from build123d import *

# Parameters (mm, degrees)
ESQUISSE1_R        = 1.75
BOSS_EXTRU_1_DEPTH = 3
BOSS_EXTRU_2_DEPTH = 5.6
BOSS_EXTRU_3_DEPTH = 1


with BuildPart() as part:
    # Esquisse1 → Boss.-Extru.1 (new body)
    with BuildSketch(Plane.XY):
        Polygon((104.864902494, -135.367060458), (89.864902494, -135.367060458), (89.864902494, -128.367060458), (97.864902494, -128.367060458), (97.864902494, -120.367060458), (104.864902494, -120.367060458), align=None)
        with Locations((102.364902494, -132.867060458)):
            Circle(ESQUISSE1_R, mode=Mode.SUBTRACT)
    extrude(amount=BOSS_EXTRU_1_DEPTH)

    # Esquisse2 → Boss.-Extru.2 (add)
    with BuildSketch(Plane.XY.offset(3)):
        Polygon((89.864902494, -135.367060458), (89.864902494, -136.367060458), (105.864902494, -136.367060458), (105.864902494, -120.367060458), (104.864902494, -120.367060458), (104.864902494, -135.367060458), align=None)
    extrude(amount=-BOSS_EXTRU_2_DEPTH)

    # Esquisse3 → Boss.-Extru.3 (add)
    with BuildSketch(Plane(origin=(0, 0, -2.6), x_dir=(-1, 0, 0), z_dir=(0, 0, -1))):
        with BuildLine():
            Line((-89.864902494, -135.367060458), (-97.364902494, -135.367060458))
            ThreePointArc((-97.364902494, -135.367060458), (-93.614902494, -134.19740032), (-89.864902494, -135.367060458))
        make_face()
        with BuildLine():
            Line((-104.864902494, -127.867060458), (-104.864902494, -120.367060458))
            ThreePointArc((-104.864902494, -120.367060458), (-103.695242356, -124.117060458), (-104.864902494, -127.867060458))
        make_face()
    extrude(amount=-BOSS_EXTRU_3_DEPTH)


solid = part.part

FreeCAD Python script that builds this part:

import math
import FreeCAD as App
import Part
import Sketcher
from FreeCAD import Vector
Q = App.Units.Quantity

doc = App.newDocument("Part")
body = doc.addObject("PartDesign::Body", "Body")

# Sketch on XY plane
sketch1 = body.newObject("Sketcher::SketchObject", "Sketch")
sketch1.AttachmentSupport = (doc.getObject("XY_Plane"), [""])
sketch1.MapMode = "FlatFace"
sketch1.addGeometry(Part.LineSegment(Vector(89.864902, -135.36706, 0), Vector(104.864902, -135.36706, 0)), False)
sketch1.addGeometry(Part.LineSegment(Vector(104.864902, -135.36706, 0), Vector(104.864902, -120.36706, 0)), False)
sketch1.addGeometry(Part.LineSegment(Vector(104.864902, -120.36706, 0), Vector(97.864902, -120.36706, 0)), False)
sketch1.addGeometry(Part.LineSegment(Vector(97.864902, -120.36706, 0), Vector(97.864902, -128.36706, 0)), False)
sketch1.addGeometry(Part.LineSegment(Vector(97.864902, -128.36706, 0), Vector(89.864902, -128.36706, 0)), False)
sketch1.addGeometry(Part.LineSegment(Vector(89.864902, -128.36706, 0), Vector(89.864902, -135.36706, 0)), False)
sketch1.addGeometry(Part.Circle(Vector(102.364902, -132.86706, 0), Vector(0, 0, 1), 1.75), False)
sketch1.addConstraint(Sketcher.Constraint("Coincident", 0, 2, 1, 1))
sketch1.addConstraint(Sketcher.Constraint("Coincident", 1, 2, 2, 1))
sketch1.addConstraint(Sketcher.Constraint("Coincident", 2, 2, 3, 1))
sketch1.addConstraint(Sketcher.Constraint("Coincident", 3, 2, 4, 1))
sketch1.addConstraint(Sketcher.Constraint("Coincident", 4, 2, 5, 1))
sketch1.addConstraint(Sketcher.Constraint("Coincident", 5, 2, 0, 1))
sketch1.addConstraint(Sketcher.Constraint("Horizontal", 0))
sketch1.addConstraint(Sketcher.Constraint("Vertical", 1))
sketch1.addConstraint(Sketcher.Constraint("Horizontal", 2))
sketch1.addConstraint(Sketcher.Constraint("Vertical", 3))
sketch1.addConstraint(Sketcher.Constraint("Horizontal", 4))
sketch1.addConstraint(Sketcher.Constraint("Vertical", 5))
sketch1.addConstraint(Sketcher.Constraint("Equal", 0, 1))
sketch1.addConstraint(Sketcher.Constraint("Equal", 4, 3))
sketch1.addConstraint(Sketcher.Constraint("Diameter", 6, Q("3.5 mm")))
sketch1.addConstraint(Sketcher.Constraint("DistanceX", 0, 1, 0, 2, Q("15 mm")))
sketch1.addConstraint(Sketcher.Constraint("DistanceX", 2, 2, 2, 1, Q("7 mm")))
sketch1.addConstraint(Sketcher.Constraint("DistanceX", 6, 3, 0, 2, Q("2.5 mm")))
sketch1.addConstraint(Sketcher.Constraint("DistanceY", 0, 2, 6, 3, Q("2.5 mm")))
sketch1.addConstraint(Sketcher.Constraint("DistanceY", 6, 3, -1, 1, Q("132.86706 mm")))
sketch1.addConstraint(Sketcher.Constraint("DistanceX", -1, 1, 6, 3, Q("102.364902 mm")))
pad1 = body.newObject("PartDesign::Pad", "Pad")
pad1.Profile = sketch1
pad1.Length = 3

# Sketch on XY plane
sketch2 = body.newObject("Sketcher::SketchObject", "Sketch001")
sketch2.AttachmentSupport = (doc.getObject("XY_Plane"), [""])
sketch2.MapMode = "FlatFace"
sketch2.AttachmentOffset = App.Placement(Vector(0, 0, 3), App.Rotation())
sketch2.addGeometry(Part.LineSegment(Vector(89.864902, -135.36706, 0), Vector(89.864902, -136.36706, 0)), False)
sketch2.addGeometry(Part.LineSegment(Vector(89.864902, -136.36706, 0), Vector(105.864902, -136.36706, 0)), False)
sketch2.addGeometry(Part.LineSegment(Vector(105.864902, -136.36706, 0), Vector(105.864902, -120.36706, 0)), False)
sketch2.addGeometry(Part.LineSegment(Vector(105.864902, -120.36706, 0), Vector(104.864902, -120.36706, 0)), False)
sketch2.addGeometry(Part.LineSegment(Vector(104.864902, -120.36706, 0), Vector(104.864902, -135.36706, 0)), False)
sketch2.addGeometry(Part.LineSegment(Vector(104.864902, -135.36706, 0), Vector(89.864902, -135.36706, 0)), False)
sketch2.addConstraint(Sketcher.Constraint("Coincident", 0, 2, 1, 1))
sketch2.addConstraint(Sketcher.Constraint("Coincident", 1, 2, 2, 1))
sketch2.addConstraint(Sketcher.Constraint("Coincident", 2, 2, 3, 1))
sketch2.addConstraint(Sketcher.Constraint("Coincident", 3, 2, 4, 1))
sketch2.addConstraint(Sketcher.Constraint("Coincident", 4, 2, 5, 1))
sketch2.addConstraint(Sketcher.Constraint("Coincident", 5, 2, 0, 1))
sketch2.addConstraint(Sketcher.Constraint("Vertical", 0))
sketch2.addConstraint(Sketcher.Constraint("Horizontal", 1))
sketch2.addConstraint(Sketcher.Constraint("Vertical", 2))
sketch2.addConstraint(Sketcher.Constraint("Horizontal", 3))
sketch2.addConstraint(Sketcher.Constraint("Vertical", 4))
sketch2.addConstraint(Sketcher.Constraint("Horizontal", 5))
sketch2.addConstraint(Sketcher.Constraint("Equal", 3, 0))
sketch2.addConstraint(Sketcher.Constraint("Equal", 1, 2))
sketch2.addConstraint(Sketcher.Constraint("DistanceX", 1, 1, 1, 2, Q("16 mm")))
sketch2.addConstraint(Sketcher.Constraint("DistanceX", 3, 2, 3, 1, Q("1 mm")))
sketch2.addConstraint(Sketcher.Constraint("DistanceY", 0, 2, -1, 1, Q("136.36706 mm")))
sketch2.addConstraint(Sketcher.Constraint("DistanceX", -1, 1, 0, 2, Q("89.864902 mm")))
pad2 = body.newObject("PartDesign::Pad", "Pad001")
pad2.Profile = sketch2
pad2.Length = 5.6
pad2.Reversed = True

# Sketch on XY plane
sketch3 = body.newObject("Sketcher::SketchObject", "Sketch002")
sketch3.AttachmentSupport = (doc.getObject("XY_Plane"), [""])
sketch3.MapMode = "FlatFace"
sketch3.AttachmentOffset = App.Placement(Vector(0, 0, -2.6), App.Rotation())
sketch3.addGeometry(Part.LineSegment(Vector(97.364902, -135.36706, 0), Vector(89.864902, -135.36706, 0)), False)
sketch3.addGeometry(Part.ArcOfCircle(Part.Circle(Vector(93.614902, -140.793592, 0), Vector(0, 0, 1), 6.596192), math.radians(55.353621), math.radians(124.646379)), False)
sketch3.addGeometry(Part.LineSegment(Vector(104.864902, -120.36706, 0), Vector(104.864902, -127.86706, 0)), False)
sketch3.addGeometry(Part.ArcOfCircle(Part.Circle(Vector(110.291434, -124.11706, 0), Vector(0, 0, 1), 6.596192), math.radians(145.353621), math.radians(214.646379)), False)
sketch3.addConstraint(Sketcher.Constraint("Coincident", 0, 1, 1, 1))
sketch3.addConstraint(Sketcher.Constraint("Coincident", 1, 2, 0, 2))
sketch3.addConstraint(Sketcher.Constraint("Coincident", 2, 1, 3, 1))
sketch3.addConstraint(Sketcher.Constraint("Coincident", 3, 2, 2, 2))
sketch3.addConstraint(Sketcher.Constraint("Horizontal", 0))
sketch3.addConstraint(Sketcher.Constraint("Vertical", 2))
sketch3.addConstraint(Sketcher.Constraint("Equal", 1, 3))
sketch3.addConstraint(Sketcher.Constraint("Equal", 0, 2))
sketch3.addConstraint(Sketcher.Constraint("DistanceX", 0, 2, 0, 1, Q("7.5 mm")))
sketch3.addConstraint(Sketcher.Constraint("DistanceY", 0, 1, 2, 1, Q("15 mm")))
sketch3.addConstraint(Sketcher.Constraint("DistanceX", 1, 2, 2, 1, Q("15 mm")))
sketch3.addConstraint(Sketcher.Constraint("Radius", 1, Q("6.596192 mm")))
sketch3.addConstraint(Sketcher.Constraint("DistanceY", 1, 3, -1, 1, Q("140.793592 mm")))
sketch3.addConstraint(Sketcher.Constraint("DistanceX", -1, 1, 1, 3, Q("93.614902 mm")))
pad3 = body.newObject("PartDesign::Pad", "Pad002")
pad3.Profile = sketch3
pad3.Length = 1

doc.recompute()
